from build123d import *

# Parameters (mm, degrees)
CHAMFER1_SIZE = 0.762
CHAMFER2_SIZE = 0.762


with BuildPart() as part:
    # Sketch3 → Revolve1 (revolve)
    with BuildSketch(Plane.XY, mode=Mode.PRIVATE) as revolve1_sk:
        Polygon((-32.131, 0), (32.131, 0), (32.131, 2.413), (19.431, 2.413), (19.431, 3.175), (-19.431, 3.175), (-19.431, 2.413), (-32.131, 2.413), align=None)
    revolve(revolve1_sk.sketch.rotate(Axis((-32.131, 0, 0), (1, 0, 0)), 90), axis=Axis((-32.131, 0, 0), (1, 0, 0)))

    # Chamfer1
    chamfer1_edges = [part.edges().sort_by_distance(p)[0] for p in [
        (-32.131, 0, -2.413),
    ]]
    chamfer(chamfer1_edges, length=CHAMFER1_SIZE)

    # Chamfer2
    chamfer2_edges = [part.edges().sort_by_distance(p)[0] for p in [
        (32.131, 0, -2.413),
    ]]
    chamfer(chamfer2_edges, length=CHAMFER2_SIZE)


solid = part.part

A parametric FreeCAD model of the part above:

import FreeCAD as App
import Part
import Sketcher
from FreeCAD import Vector
Q = App.Units.Quantity


def edges_at(feature, points):
    """Names of the edges that pass closest to the given points."""
    edges = feature.Shape.Edges
    near = lambda p: min(range(len(edges)), key=lambda i: edges[i].distToShape(Part.Vertex(*p))[0])
    return sorted({f"Edge{near(p) + 1}" for p in points})

doc = App.newDocument("Part")
body = doc.addObject("PartDesign::Body", "Body")

sketch1 = doc.addObject("Sketcher::SketchObject", "Sketch")
body.addObject(sketch1)
sketch1.AttachmentSupport = (doc.XY_Plane, [""])
sketch1.MapMode = "FlatFace"
sketch1.addGeometry(Part.LineSegment(Vector(-32.1, 0, 0), Vector(32.1, 0, 0)), False)
sketch1.addGeometry(Part.LineSegment(Vector(32.1, 0, 0), Vector(32.1, 2.4, 0)), False)
sketch1.addGeometry(Part.LineSegment(Vector(32.1, 2.4, 0), Vector(19.4, 2.4, 0)), False)
sketch1.addGeometry(Part.LineSegment(Vector(19.4, 2.4, 0), Vector(19.4, 3.2, 0)), False)
sketch1.addGeometry(Part.LineSegment(Vector(19.4, 3.2, 0), Vector(-19.4, 3.2, 0)), False)
sketch1.addGeometry(Part.LineSegment(Vector(-19.4, 3.2, 0), Vector(-19.4, 2.4, 0)), False)
sketch1.addGeometry(Part.LineSegment(Vector(-19.4, 2.4, 0), Vector(-32.1, 2.4, 0)), False)
sketch1.addGeometry(Part.LineSegment(Vector(-32.1, 2.4, 0), Vector(-32.1, 0, 0)), False)
sketch1.addConstraint(Sketcher.Constraint("Coincident", 0, 2, 1, 1))
sketch1.addConstraint(Sketcher.Constraint("Coincident", 1, 2, 2, 1))
sketch1.addConstraint(Sketcher.Constraint("Coincident", 2, 2, 3, 1))
sketch1.addConstraint(Sketcher.Constraint("Coincident", 3, 2, 4, 1))
sketch1.addConstraint(Sketcher.Constraint("Coincident", 4, 2, 5, 1))
sketch1.addConstraint(Sketcher.Constraint("Coincident", 5, 2, 6, 1))
sketch1.addConstraint(Sketcher.Constraint("Coincident", 6, 2, 7, 1))
sketch1.addConstraint(Sketcher.Constraint("Coincident", 7, 2, 0, 1))
sketch1.addConstraint(Sketcher.Constraint("Horizontal", 0))
sketch1.addConstraint(Sketcher.Constraint("Vertical", 1))
sketch1.addConstraint(Sketcher.Constraint("Horizontal", 2))
sketch1.addConstraint(Sketcher.Constraint("Vertical", 3))
sketch1.addConstraint(Sketcher.Constraint("Horizontal", 4))
sketch1.addConstraint(Sketcher.Constraint("Vertical", 5))
sketch1.addConstraint(Sketcher.Constraint("Horizontal", 6))
sketch1.addConstraint(Sketcher.Constraint("Vertical", 7))
sketch1.addConstraint(Sketcher.Constraint("Symmetric", 0, 2, 7, 2, -1, 1))
sketch1.addConstraint(Sketcher.Constraint("Symmetric", 2, 2, 5, 2, -2))
sketch1.addConstraint(Sketcher.Constraint("DistanceX", 2, 2, 2, 1, Q("0.5 in")))
sketch1.addConstraint(Sketcher.Constraint("DistanceX", 0, 1, 0, 2, Q("2.53 in")))
sketch1.addConstraint(Sketcher.Constraint("DistanceY", 3, 1, 3, 2, Q("0.03 in")))
sketch1.addConstraint(Sketcher.Constraint("DistanceY", 1, 1, 1, 2, Q("0.095 in")))
revolution = doc.addObject("PartDesign::Revolution", "Revolution")
body.addObject(revolution)
revolution.Profile = sketch1
revolution.ReferenceAxis = (sketch1, ["H_Axis"])
revolution.Angle = 360
doc.recompute()

chamfer = doc.addObject("PartDesign::Chamfer", "Chamfer")
body.addObject(chamfer)
chamfer.Base = (revolution, edges_at(revolution, [(-32.131, 0, -2.413)]))
chamfer.Size = Q("0.03 in")
doc.recompute()

chamfer2 = doc.addObject("PartDesign::Chamfer", "Chamfer001")
body.addObject(chamfer2)
chamfer2.Base = (chamfer, edges_at(chamfer, [(32.131, 0, -2.413)]))
chamfer2.Size = Q("0.03 in")

doc.recompute()
